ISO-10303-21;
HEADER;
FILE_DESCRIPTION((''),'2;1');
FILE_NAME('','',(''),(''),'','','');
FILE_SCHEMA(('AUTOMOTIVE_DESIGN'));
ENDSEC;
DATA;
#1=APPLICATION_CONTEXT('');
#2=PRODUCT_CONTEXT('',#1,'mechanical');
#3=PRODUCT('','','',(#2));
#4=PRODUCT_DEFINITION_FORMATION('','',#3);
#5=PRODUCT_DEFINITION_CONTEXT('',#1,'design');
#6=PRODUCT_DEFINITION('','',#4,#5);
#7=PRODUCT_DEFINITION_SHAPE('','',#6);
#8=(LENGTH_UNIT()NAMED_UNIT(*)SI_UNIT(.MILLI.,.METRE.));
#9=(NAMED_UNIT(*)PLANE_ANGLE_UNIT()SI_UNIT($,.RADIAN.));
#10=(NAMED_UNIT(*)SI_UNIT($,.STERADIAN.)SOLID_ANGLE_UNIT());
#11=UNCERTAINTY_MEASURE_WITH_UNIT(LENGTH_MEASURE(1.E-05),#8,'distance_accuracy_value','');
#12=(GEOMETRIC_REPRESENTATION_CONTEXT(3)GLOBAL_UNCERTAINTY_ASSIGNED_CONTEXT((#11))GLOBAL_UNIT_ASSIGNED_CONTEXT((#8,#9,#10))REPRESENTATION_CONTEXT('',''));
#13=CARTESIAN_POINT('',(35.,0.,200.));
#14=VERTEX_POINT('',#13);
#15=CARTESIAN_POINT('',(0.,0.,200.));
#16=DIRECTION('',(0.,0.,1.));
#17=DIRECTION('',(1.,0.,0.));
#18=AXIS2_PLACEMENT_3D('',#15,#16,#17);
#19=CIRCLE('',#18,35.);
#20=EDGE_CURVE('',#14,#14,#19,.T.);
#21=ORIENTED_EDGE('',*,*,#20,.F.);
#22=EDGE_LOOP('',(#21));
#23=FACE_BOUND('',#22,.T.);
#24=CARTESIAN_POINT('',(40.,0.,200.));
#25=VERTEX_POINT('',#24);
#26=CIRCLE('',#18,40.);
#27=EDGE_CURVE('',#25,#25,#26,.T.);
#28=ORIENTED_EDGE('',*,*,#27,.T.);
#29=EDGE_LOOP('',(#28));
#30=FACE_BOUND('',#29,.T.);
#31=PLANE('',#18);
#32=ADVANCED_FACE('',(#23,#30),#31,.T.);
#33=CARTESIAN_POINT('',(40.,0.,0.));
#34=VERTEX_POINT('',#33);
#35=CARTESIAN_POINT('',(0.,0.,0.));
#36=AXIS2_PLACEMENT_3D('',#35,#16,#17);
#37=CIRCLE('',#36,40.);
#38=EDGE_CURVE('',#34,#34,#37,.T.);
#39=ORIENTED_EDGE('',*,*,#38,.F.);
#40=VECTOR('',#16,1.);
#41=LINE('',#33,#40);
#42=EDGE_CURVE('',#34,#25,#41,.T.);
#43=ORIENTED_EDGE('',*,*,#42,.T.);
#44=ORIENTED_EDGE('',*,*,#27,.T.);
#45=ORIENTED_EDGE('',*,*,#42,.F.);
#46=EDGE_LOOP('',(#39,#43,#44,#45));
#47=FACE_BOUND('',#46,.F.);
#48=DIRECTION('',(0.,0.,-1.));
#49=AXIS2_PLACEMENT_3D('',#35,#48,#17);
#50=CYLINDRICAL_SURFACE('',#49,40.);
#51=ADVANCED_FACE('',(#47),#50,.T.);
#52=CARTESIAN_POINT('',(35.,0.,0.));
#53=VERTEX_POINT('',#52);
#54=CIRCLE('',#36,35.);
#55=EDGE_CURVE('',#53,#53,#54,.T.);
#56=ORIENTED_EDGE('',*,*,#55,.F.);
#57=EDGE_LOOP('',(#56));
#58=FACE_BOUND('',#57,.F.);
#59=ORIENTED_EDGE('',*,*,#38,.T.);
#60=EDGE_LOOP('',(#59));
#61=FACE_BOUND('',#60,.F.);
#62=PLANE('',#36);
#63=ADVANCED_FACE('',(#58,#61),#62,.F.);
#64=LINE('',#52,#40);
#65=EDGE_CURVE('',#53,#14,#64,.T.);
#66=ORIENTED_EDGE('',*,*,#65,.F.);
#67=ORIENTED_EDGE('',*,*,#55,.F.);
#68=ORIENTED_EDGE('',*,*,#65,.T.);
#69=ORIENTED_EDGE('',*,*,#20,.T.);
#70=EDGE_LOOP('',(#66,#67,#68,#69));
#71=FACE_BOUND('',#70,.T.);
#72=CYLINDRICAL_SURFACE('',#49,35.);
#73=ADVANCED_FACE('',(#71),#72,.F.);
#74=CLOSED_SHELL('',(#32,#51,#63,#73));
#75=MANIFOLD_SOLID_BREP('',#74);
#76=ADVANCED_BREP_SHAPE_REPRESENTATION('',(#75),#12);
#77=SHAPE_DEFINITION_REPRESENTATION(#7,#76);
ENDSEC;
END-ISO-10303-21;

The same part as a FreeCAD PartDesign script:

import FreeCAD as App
import Part
import Sketcher

V = App.Vector
Q = App.Units.Quantity

doc = App.newDocument("Part")
body = doc.addObject("PartDesign::Body", "Body")

# Sketch on XY plane
sketch1 = doc.addObject("Sketcher::SketchObject", "Sketch")
body.addObject(sketch1)
sketch1.AttachmentSupport = (doc.XY_Plane, [""])
sketch1.MapMode = "FlatFace"
sketch1.addGeometry([
    Part.Circle(V(0, 0, 0), V(0, 0, 1), 40),
    Part.Circle(V(0, 0, 0), V(0, 0, 1), 35),
], False)
sketch1.addConstraint([
    Sketcher.Constraint("Coincident", 0, 3, -1, 1),
    Sketcher.Constraint("Coincident", 1, 3, -1, 1),
    Sketcher.Constraint("Diameter", 0, Q("80 mm")),
    Sketcher.Constraint("Diameter", 1, Q("70 mm")),
])
pad1 = doc.addObject("PartDesign::Pad", "Pad")
body.addObject(pad1)
pad1.Profile = sketch1
pad1.Length = 200

doc.recompute()
